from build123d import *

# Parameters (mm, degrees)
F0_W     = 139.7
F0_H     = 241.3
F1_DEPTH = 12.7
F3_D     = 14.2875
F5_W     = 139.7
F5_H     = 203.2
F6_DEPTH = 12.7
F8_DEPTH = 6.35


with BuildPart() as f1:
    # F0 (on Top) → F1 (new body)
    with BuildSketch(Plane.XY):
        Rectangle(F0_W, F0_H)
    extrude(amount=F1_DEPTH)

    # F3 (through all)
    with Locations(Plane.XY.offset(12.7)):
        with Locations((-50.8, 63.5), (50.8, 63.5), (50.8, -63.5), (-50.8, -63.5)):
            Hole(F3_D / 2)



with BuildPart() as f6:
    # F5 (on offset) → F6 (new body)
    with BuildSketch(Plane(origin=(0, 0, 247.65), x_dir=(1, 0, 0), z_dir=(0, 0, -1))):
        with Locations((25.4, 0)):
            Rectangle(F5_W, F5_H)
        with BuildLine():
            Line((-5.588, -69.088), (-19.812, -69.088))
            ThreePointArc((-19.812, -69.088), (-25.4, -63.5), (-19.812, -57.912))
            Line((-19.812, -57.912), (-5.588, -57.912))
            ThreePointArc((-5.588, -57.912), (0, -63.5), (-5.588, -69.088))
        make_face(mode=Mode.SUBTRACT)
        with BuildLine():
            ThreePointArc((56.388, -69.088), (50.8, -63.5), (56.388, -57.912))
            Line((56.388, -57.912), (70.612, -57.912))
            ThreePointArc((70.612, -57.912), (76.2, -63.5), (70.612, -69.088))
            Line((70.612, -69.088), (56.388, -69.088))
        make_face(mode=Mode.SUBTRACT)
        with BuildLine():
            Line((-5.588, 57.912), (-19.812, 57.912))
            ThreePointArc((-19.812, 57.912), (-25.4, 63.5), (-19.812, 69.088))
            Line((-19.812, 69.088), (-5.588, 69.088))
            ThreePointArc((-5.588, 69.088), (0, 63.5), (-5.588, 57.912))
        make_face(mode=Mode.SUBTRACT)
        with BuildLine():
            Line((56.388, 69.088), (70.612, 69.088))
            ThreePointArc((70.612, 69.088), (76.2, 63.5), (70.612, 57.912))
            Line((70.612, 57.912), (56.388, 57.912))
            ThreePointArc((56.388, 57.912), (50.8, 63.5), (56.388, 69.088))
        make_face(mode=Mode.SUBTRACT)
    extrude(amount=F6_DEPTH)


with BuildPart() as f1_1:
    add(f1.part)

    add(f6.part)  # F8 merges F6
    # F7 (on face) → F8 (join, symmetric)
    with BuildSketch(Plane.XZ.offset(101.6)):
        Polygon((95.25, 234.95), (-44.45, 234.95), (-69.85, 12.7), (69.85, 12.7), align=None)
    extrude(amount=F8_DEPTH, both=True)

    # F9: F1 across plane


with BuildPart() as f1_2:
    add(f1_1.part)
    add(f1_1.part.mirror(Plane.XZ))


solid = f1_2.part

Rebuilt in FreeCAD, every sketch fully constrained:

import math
import FreeCAD as App
import Part
import Sketcher
from FreeCAD import Vector
Q = App.Units.Quantity

doc = App.newDocument("Part")
body = doc.addObject("PartDesign::Body", "Body")

# Sketch on XY plane
sketch1 = body.newObject("Sketcher::SketchObject", "Sketch")
sketch1.AttachmentSupport = (doc.getObject("XY_Plane"), [""])
sketch1.MapMode = "FlatFace"
sketch1.addGeometry([
    Part.LineSegment(Vector(-69.85, 120.65, 0), Vector(-69.85, -120.65, 0)),
    Part.LineSegment(Vector(-69.85, -120.65, 0), Vector(69.85, -120.65, 0)),
    Part.LineSegment(Vector(69.85, -120.65, 0), Vector(69.85, 120.65, 0)),
    Part.LineSegment(Vector(69.85, 120.65, 0), Vector(-69.85, 120.65, 0)),
], False)
sketch1.addConstraint([
    Sketcher.Constraint("Coincident", 0, 2, 1, 1),
    Sketcher.Constraint("Coincident", 1, 2, 2, 1),
    Sketcher.Constraint("Coincident", 2, 2, 3, 1),
    Sketcher.Constraint("Coincident", 3, 2, 0, 1),
    Sketcher.Constraint("Vertical", 0),
    Sketcher.Constraint("Horizontal", 1),
    Sketcher.Constraint("Vertical", 2),
    Sketcher.Constraint("Horizontal", 3),
    Sketcher.Constraint("Symmetric", 0, 2, 2, 2, -1, 1),
    Sketcher.Constraint("DistanceX", 1, 1, 1, 2, Q("5.5 in")),
    Sketcher.Constraint("DistanceY", 0, 2, 0, 1, Q("9.5 in")),
])
pad1 = body.newObject("PartDesign::Pad", "Pad")
pad1.Profile = sketch1
pad1.Length = Q("0.5 in")

# Sketch on XY plane
sketch2 = body.newObject("Sketcher::SketchObject", "Sketch001")
sketch2.AttachmentSupport = (doc.getObject("XY_Plane"), [""])
sketch2.MapMode = "FlatFace"
sketch2.AttachmentOffset = App.Placement(Vector(0, 0, 0.5 * 25.4), App.Rotation())
sketch2.addGeometry([
    Part.Circle(Vector(-50.8, 63.5, 0), Vector(0, 0, 1), 7.14375),
    Part.Circle(Vector(50.8, 63.5, 0), Vector(0, 0, 1), 7.14375),
    Part.Circle(Vector(50.8, -63.5, 0), Vector(0, 0, 1), 7.14375),
    Part.Circle(Vector(-50.8, -63.5, 0), Vector(0, 0, 1), 7.14375),
], False)
sketch2.addConstraint([
    Sketcher.Constraint("Equal", 0, 1),
    Sketcher.Constraint("Equal", 1, 2),
    Sketcher.Constraint("Equal", 2, 3),
    Sketcher.Constraint("Symmetric", 0, 3, 2, 3, -1, 1),
    Sketcher.Constraint("Symmetric", 1, 3, 3, 3, -1, 1),
    Sketcher.Constraint("Symmetric", 0, 3, 1, 3, -2),
    Sketcher.Constraint("Diameter", 0, Q("0.5625 in")),
    Sketcher.Constraint("DistanceX", 0, 3, -1, 1, Q("2 in")),
    Sketcher.Constraint("DistanceY", 2, 3, 1, 3, Q("5 in")),
])
doc.recompute()
hole = body.newObject("PartDesign::Hole", "Hole")
hole.Profile = sketch2
hole.ThreadType = "None"
hole.Diameter = Q("0.5625 in")
hole.DepthType = "ThroughAll"
body2 = doc.addObject("PartDesign::Body", "Body001")

# Sketch on XY plane
sketch3 = body2.newObject("Sketcher::SketchObject", "Sketch002")
sketch3.AttachmentSupport = (doc.getObject("XY_Plane001"), [""])
sketch3.MapMode = "FlatFace"
sketch3.AttachmentOffset = App.Placement(Vector(0, 0, 9.75 * 25.4), App.Rotation())
sketch3.addGeometry([
    Part.LineSegment(Vector(-44.45, -101.6, 0), Vector(-44.45, 101.6, 0)),  # 0
    Part.LineSegment(Vector(-44.45, 101.6, 0), Vector(95.25, 101.6, 0)),  # 1
    Part.LineSegment(Vector(95.25, 101.6, 0), Vector(95.25, -101.6, 0)),  # 2
    Part.LineSegment(Vector(95.25, -101.6, 0), Vector(-44.45, -101.6, 0)),  # 3
    Part.ArcOfCircle(Part.Circle(Vector(-5.588, 63.5, 0), Vector(0, 0, 1), 5.588), math.radians(-90), math.radians(90)),  # 4
    Part.LineSegment(Vector(-5.588, 69.088, 0), Vector(-19.812, 69.088, 0)),  # 5
    Part.ArcOfCircle(Part.Circle(Vector(-19.812, 63.5, 0), Vector(0, 0, 1), 5.588), math.radians(90), math.radians(270)),  # 6
    Part.LineSegment(Vector(-19.812, 57.912, 0), Vector(-5.588, 57.912, 0)),  # 7
    Part.LineSegment(Vector(70.612, 69.088, 0), Vector(56.388, 69.088, 0)),  # 8
    Part.ArcOfCircle(Part.Circle(Vector(56.388, 63.5, 0), Vector(0, 0, 1), 5.588), math.radians(90), math.radians(270)),  # 9
    Part.LineSegment(Vector(56.388, 57.912, 0), Vector(70.612, 57.912, 0)),  # 10
    Part.ArcOfCircle(Part.Circle(Vector(70.612, 63.5, 0), Vector(0, 0, 1), 5.588), math.radians(-90), math.radians(90)),  # 11
    Part.ArcOfCircle(Part.Circle(Vector(-5.588, -63.5, 0), Vector(0, 0, 1), 5.588), math.radians(-90), math.radians(90)),  # 12
    Part.LineSegment(Vector(-5.588, -57.912, 0), Vector(-19.812, -57.912, 0)),  # 13
    Part.ArcOfCircle(Part.Circle(Vector(-19.812, -63.5, 0), Vector(0, 0, 1), 5.588), math.radians(90), math.radians(270)),  # 14
    Part.LineSegment(Vector(-19.812, -69.088, 0), Vector(-5.588, -69.088, 0)),  # 15
    Part.ArcOfCircle(Part.Circle(Vector(56.388, -63.5, 0), Vector(0, 0, 1), 5.588), math.radians(90), math.radians(270)),  # 16
    Part.LineSegment(Vector(56.388, -69.088, 0), Vector(70.612, -69.088, 0)),  # 17
    Part.ArcOfCircle(Part.Circle(Vector(70.612, -63.5, 0), Vector(0, 0, 1), 5.588), math.radians(-90), math.radians(90)),  # 18
    Part.LineSegment(Vector(70.612, -57.912, 0), Vector(56.388, -57.912, 0)),  # 19
], False)
sketch3.addConstraint([
    Sketcher.Constraint("Coincident", 0, 2, 1, 1),
    Sketcher.Constraint("Coincident", 1, 2, 2, 1),
    Sketcher.Constraint("Coincident", 2, 2, 3, 1),
    Sketcher.Constraint("Coincident", 3, 2, 0, 1),
    Sketcher.Constraint("Tangent", 4, 2, 5, 1),
    Sketcher.Constraint("Tangent", 5, 2, 6, 1),
    Sketcher.Constraint("Tangent", 6, 2, 7, 1),
    Sketcher.Constraint("Tangent", 7, 2, 4, 1),
    Sketcher.Constraint("Tangent", 8, 2, 9, 1),
    Sketcher.Constraint("Tangent", 9, 2, 10, 1),
    Sketcher.Constraint("Tangent", 10, 2, 11, 1),
    Sketcher.Constraint("Tangent", 11, 2, 8, 1),
    Sketcher.Constraint("Tangent", 12, 2, 13, 1),
    Sketcher.Constraint("Tangent", 13, 2, 14, 1),
    Sketcher.Constraint("Tangent", 14, 2, 15, 1),
    Sketcher.Constraint("Tangent", 15, 2, 12, 1),
    Sketcher.Constraint("Tangent", 16, 2, 17, 1),
    Sketcher.Constraint("Tangent", 17, 2, 18, 1),
    Sketcher.Constraint("Tangent", 18, 2, 19, 1),
    Sketcher.Constraint("Tangent", 19, 2, 16, 1),
    Sketcher.Constraint("Vertical", 0),
    Sketcher.Constraint("Horizontal", 1),
    Sketcher.Constraint("Vertical", 2),
    Sketcher.Constraint("Horizontal", 3),
    Sketcher.Constraint("Horizontal", 5),
    Sketcher.Constraint("Horizontal", 7),
    Sketcher.Constraint("Horizontal", 8),
    Sketcher.Constraint("Horizontal", 10),
    Sketcher.Constraint("Horizontal", 13),
    Sketcher.Constraint("Horizontal", 15),
    Sketcher.Constraint("Horizontal", 17),
    Sketcher.Constraint("Horizontal", 19),
    Sketcher.Constraint("Equal", 6, 9),
    Sketcher.Constraint("Equal", 11, 12),
    Sketcher.Constraint("Equal", 14, 16),
    Sketcher.Constraint("Symmetric", 4, 3, 12, 3, -1),
    Sketcher.Constraint("Symmetric", 9, 3, 16, 3, -1),
    Sketcher.Constraint("Horizontal", 6, 3, 9, 3),
    Sketcher.Constraint("Vertical", 6, 3, 14, 3),
    Sketcher.Constraint("Vertical", 11, 3, 18, 3),
    Sketcher.Constraint("Equal", 7, 8),
    Sketcher.Constraint("DistanceY", 0, 1, 0, 2, Q("8 in")),
    Sketcher.Constraint("Radius", 4, Q("0.22 in")),
    Sketcher.Constraint("DistanceX", 1, 1, 1, 2, Q("5.5 in")),
    Sketcher.Constraint("DistanceY", -1, 1, 0, 2, Q("4 in")),
    Sketcher.Constraint("DistanceX", 6, 3, 9, 3, Q("3 in")),
    Sketcher.Constraint("DistanceY", 12, 3, 4, 3, Q("5 in")),
    Sketcher.Constraint("DistanceX", 5, 2, 5, 1, Q("0.56 in")),
    Sketcher.Constraint("DistanceX", 4, 3, -1, 1, Q("0.22 in")),
    Sketcher.Constraint("DistanceX", 0, 2, -1, 1, Q("1.75 in")),
])
pad2 = body2.newObject("PartDesign::Pad", "Pad001")
pad2.Profile = sketch3
pad2.Length = Q("0.5 in")
pad2.Reversed = True
body.AllowCompound = True
doc.recompute()

boolean = body.newObject("PartDesign::Boolean", "Boolean")
boolean.Type = "Fuse"
boolean.addObjects([body2])

# Sketch on XZ plane
sketch4 = body.newObject("Sketcher::SketchObject", "Sketch003")
sketch4.AttachmentSupport = (doc.getObject("XZ_Plane"), [""])
sketch4.MapMode = "FlatFace"
sketch4.AttachmentOffset = App.Placement(Vector(0, 0, 4 * 25.4), App.Rotation())
sketch4.addGeometry([
    Part.LineSegment(Vector(95.25, 234.95, 0), Vector(-44.45, 234.95, 0)),
    Part.LineSegment(Vector(-44.45, 234.95, 0), Vector(-69.85, 12.7, 0)),
    Part.LineSegment(Vector(-69.85, 12.7, 0), Vector(69.85, 12.7, 0)),
    Part.LineSegment(Vector(69.85, 12.7, 0), Vector(95.25, 234.95, 0)),
], False)
sketch4.addConstraint([
    Sketcher.Constraint("Coincident", 0, 2, 1, 1),
    Sketcher.Constraint("Coincident", 1, 2, 2, 1),
    Sketcher.Constraint("Coincident", 2, 2, 3, 1),
    Sketcher.Constraint("Coincident", 3, 2, 0, 1),
    Sketcher.Constraint("Horizontal", 0),
    Sketcher.Constraint("Horizontal", 2),
    Sketcher.Constraint("Parallel", 1, 3),
    Sketcher.Constraint("DistanceX", 0, 2, 0, 1, Q("5.5 in")),
    Sketcher.Constraint("DistanceX", 1, 2, 0, 2, Q("1 in")),
    Sketcher.Constraint("DistanceY", -1, 1, 1, 2, Q("0.5 in")),
    Sketcher.Constraint("DistanceX", 0, 2, -1, 1, Q("1.75 in")),
    Sketcher.Constraint("DistanceY", -1, 1, 0, 2, Q("9.25 in")),
])
pad3 = body.newObject("PartDesign::Pad", "Pad002")
pad3.Profile = sketch4
pad3.Length = Q("0.5 in")
pad3.Midplane = True
body3 = doc.addObject("PartDesign::Body", "Body002")
doc.recompute()

body3.BaseFeature = body
doc.recompute()

mirroring = doc.addObject("Part::Mirroring", "Mirroring")
mirroring.Source = body
mirroring.Base = Vector(0, 0, 0)
mirroring.Normal = Vector(0, -1, 0)
body4 = doc.addObject("PartDesign::Body", "Body003")
body4.BaseFeature = mirroring
boolean2 = body3.newObject("PartDesign::Boolean", "Boolean001")
boolean2.Type = "Fuse"
boolean2.addObjects([body4])
doc.recompute()
mirroring.Visibility = False

doc.recompute()
